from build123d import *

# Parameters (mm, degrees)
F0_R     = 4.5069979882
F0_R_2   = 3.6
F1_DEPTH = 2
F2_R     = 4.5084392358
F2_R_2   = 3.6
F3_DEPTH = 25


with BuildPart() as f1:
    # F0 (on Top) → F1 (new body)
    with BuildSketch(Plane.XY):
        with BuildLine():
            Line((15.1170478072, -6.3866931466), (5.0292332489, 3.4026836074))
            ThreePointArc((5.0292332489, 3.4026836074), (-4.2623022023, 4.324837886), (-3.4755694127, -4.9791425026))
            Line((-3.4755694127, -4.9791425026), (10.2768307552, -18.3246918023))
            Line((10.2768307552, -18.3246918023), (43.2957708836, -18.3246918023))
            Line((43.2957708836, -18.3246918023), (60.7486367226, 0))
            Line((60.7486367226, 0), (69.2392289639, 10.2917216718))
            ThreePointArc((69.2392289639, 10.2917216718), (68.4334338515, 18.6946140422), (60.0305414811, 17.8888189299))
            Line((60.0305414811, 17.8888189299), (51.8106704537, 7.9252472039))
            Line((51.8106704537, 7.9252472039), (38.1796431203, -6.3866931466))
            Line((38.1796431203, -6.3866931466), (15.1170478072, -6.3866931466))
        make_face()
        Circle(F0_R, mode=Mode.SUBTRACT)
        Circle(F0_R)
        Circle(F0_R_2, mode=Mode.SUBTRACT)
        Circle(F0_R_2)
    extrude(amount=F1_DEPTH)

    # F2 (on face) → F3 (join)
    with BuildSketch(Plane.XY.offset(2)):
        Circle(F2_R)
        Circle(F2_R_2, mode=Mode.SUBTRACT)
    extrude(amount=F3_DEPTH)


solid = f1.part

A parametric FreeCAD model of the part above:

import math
import FreeCAD as App
import Part
import Sketcher

V = App.Vector

doc = App.newDocument("Part")
body = doc.addObject("PartDesign::Body", "Body")

sketch1 = doc.addObject("Sketcher::SketchObject", "Sketch")
body.addObject(sketch1)
sketch1.AttachmentSupport = (doc.XY_Plane, [""])
sketch1.MapMode = "FlatFace"
sketch1.addGeometry(Part.LineSegment(V(15.117048, -6.386693, 0), V(5.029233, 3.402684, 0)), False)
sketch1.addGeometry(Part.ArcOfCircle(Part.Circle(V(0, 0, 0), V(0, 0, 1), 6.072186), math.radians(34.081535), math.radians(235.083969)), False)
sketch1.addGeometry(Part.LineSegment(V(-3.475569, -4.979143, 0), V(10.276831, -18.324692, 0)), False)
sketch1.addGeometry(Part.LineSegment(V(10.276831, -18.324692, 0), V(43.295771, -18.324692, 0)), False)
sketch1.addGeometry(Part.LineSegment(V(43.295771, -18.324692, 0), V(60.748637, 0, 0)), False)
sketch1.addGeometry(Part.LineSegment(V(60.748637, 0, 0), V(69.239229, 10.291722, 0)), False)
sketch1.addGeometry(Part.ArcOfCircle(Part.Circle(V(64.634885, 14.09027, 0), V(0, 0, 1), 5.968999), math.radians(-39.522372), math.radians(140.477628)), False)
sketch1.addGeometry(Part.LineSegment(V(60.030541, 17.888819, 0), V(51.81067, 7.925247, 0)), False)
sketch1.addGeometry(Part.LineSegment(V(51.81067, 7.925247, 0), V(38.179643, -6.386693, 0)), False)
sketch1.addGeometry(Part.LineSegment(V(38.179643, -6.386693, 0), V(15.117048, -6.386693, 0)), False)
sketch1.addConstraint(Sketcher.Constraint("Coincident", 0, 2, 1, 1))
sketch1.addConstraint(Sketcher.Constraint("Coincident", 1, 2, 2, 1))
sketch1.addConstraint(Sketcher.Constraint("Coincident", 2, 2, 3, 1))
sketch1.addConstraint(Sketcher.Constraint("Coincident", 3, 2, 4, 1))
sketch1.addConstraint(Sketcher.Constraint("Coincident", 4, 2, 5, 1))
sketch1.addConstraint(Sketcher.Constraint("Tangent", 5, 2, 6, 1))
sketch1.addConstraint(Sketcher.Constraint("Tangent", 6, 2, 7, 1))
sketch1.addConstraint(Sketcher.Constraint("Coincident", 7, 2, 8, 1))
sketch1.addConstraint(Sketcher.Constraint("Coincident", 8, 2, 9, 1))
sketch1.addConstraint(Sketcher.Constraint("Coincident", 9, 2, 0, 1))
sketch1.addConstraint(Sketcher.Constraint("Horizontal", 3))
sketch1.addConstraint(Sketcher.Constraint("Horizontal", 9))
sketch1.addConstraint(Sketcher.Constraint("Coincident", 1, 3, -1, 1))
sketch1.addConstraint(Sketcher.Constraint("PointOnObject", 4, 2, -1))
sketch1.addConstraint(Sketcher.Constraint("Parallel", 0, 2))
sketch1.addConstraint(Sketcher.Constraint("Parallel", 5, 7))
sketch1.addConstraint(Sketcher.Constraint("Parallel", 4, 8))
sketch1.addConstraint(Sketcher.Constraint("Radius", 6, 5.968999))
sketch1.addConstraint(Sketcher.Constraint("Radius", 1, 6.072186))
sketch1.addConstraint(Sketcher.Constraint("DistanceY", 3, 2, 8, 2, 11.937999))
sketch1.addConstraint(Sketcher.Constraint("DistanceX", 3, 1, 3, 2, 33.01894))
sketch1.addConstraint(Sketcher.Constraint("DistanceX", 1, 2, 2, 2, 13.7524))
sketch1.addConstraint(Sketcher.Constraint("DistanceX", 2, 2, 5, 2, 58.962398))
sketch1.addConstraint(Sketcher.Constraint("DistanceX", 3, 2, 7, 2, 8.5149))
sketch1.addConstraint(Sketcher.Constraint("DistanceX", 8, 2, 6, 2, 21.850898))
sketch1.addConstraint(Sketcher.Constraint("Distance", 0, 14.056881))
sketch1.addConstraint(Sketcher.Constraint("Distance", 7, 12.916619))
sketch1.addConstraint(Sketcher.Constraint("DistanceX", 9, 2, 9, 1, 23.062595))
sketch1.addConstraint(Sketcher.Constraint("DistanceY", -1, 1, 6, 3, 14.09027))
pad1 = doc.addObject("PartDesign::Pad", "Pad")
body.addObject(pad1)
pad1.Profile = sketch1
pad1.Length = 2

sketch2 = doc.addObject("Sketcher::SketchObject", "Sketch001")
body.addObject(sketch2)
sketch2.AttachmentSupport = (doc.XY_Plane, [""])
sketch2.MapMode = "FlatFace"
sketch2.AttachmentOffset = App.Placement(V(0, 0, 2), App.Rotation())
sketch2.addGeometry(Part.Circle(V(0, 0, 0), V(0, 0, 1), 4.508439), False)
sketch2.addGeometry(Part.Circle(V(0, 0, 0), V(0, 0, 1), 3.6), False)
sketch2.addConstraint(Sketcher.Constraint("Coincident", 0, 3, -1, 1))
sketch2.addConstraint(Sketcher.Constraint("Coincident", 1, 3, -1, 1))
sketch2.addConstraint(Sketcher.Constraint("Diameter", 1, 7.2))
sketch2.addConstraint(Sketcher.Constraint("Diameter", 0, 9.016878))
pad2 = doc.addObject("PartDesign::Pad", "Pad001")
body.addObject(pad2)
pad2.Profile = sketch2
pad2.Length = 25

doc.recompute()
